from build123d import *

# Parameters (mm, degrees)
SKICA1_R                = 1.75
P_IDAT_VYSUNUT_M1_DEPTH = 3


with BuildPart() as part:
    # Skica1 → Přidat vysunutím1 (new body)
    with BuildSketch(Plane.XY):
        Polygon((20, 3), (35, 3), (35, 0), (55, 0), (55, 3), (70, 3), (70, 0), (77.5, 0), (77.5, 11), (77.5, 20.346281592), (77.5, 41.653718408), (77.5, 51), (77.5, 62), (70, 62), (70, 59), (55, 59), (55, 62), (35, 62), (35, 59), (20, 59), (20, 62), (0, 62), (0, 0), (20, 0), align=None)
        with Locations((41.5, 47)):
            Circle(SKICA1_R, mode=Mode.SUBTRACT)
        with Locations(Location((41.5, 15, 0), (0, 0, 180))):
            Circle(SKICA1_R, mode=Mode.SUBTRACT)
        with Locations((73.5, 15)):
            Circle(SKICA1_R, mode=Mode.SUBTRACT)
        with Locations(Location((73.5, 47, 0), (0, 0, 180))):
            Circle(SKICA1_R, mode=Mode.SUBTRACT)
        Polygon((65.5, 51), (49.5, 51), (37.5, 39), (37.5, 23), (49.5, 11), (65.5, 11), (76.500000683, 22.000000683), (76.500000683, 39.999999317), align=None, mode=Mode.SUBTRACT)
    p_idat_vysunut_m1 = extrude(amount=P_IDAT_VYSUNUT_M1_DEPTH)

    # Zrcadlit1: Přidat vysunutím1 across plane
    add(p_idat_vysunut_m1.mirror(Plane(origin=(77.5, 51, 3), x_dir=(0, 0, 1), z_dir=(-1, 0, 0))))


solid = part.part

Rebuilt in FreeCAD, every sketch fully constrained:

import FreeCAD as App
import Part
import Sketcher
from FreeCAD import Vector
Q = App.Units.Quantity


def add_polygon(sketch, points):
    """Adds a closed chain of lines whose ends are joined by coincident constraints."""
    first, n = sketch.GeometryCount, len(points)
    for a, b in zip(points, points[1:] + points[:1]):
        sketch.addGeometry(Part.LineSegment(App.Vector(*a, 0), App.Vector(*b, 0)), False)
    for i in range(n):
        sketch.addConstraint(Sketcher.Constraint("Coincident", first + i, 2, first + (i + 1) % n, 1))

doc = App.newDocument("Part")
body = doc.addObject("PartDesign::Body", "Body")

sketch1 = body.newObject("Sketcher::SketchObject", "Sketch")
sketch1.AttachmentSupport = (doc.getObject("XY_Plane"), [""])
sketch1.MapMode = "FlatFace"
add_polygon(sketch1, [(20, 3), (35, 3), (35, 0), (55, 0), (55, 3), (70, 3), (70, 0), (77.5, 0), (77.5, 62), (70, 62), (70, 59), (55, 59), (55, 62), (35, 62), (35, 59), (20, 59), (20, 62), (0, 62), (0, 0), (20, 0)])
sketch1.addGeometry(Part.Circle(Vector(41.5, 15, 0), Vector(0, 0, 1), 1.75), False)
sketch1.addGeometry(Part.Circle(Vector(73.5, 15, 0), Vector(0, 0, 1), 1.75), False)
sketch1.addGeometry(Part.Circle(Vector(41.5, 47, 0), Vector(0, 0, 1), 1.75), False)
add_polygon(sketch1, [(49.5, 51), (65.5, 51), (76.500001, 39.999999), (76.500001, 22.000001), (65.5, 11), (49.5, 11), (37.5, 23), (37.5, 39)])
sketch1.addGeometry(Part.Circle(Vector(73.5, 47, 0), Vector(0, 0, 1), 1.75), False)
sketch1.addConstraint([
    Sketcher.Constraint("Horizontal", 0),
    Sketcher.Constraint("Vertical", 1),
    Sketcher.Constraint("Horizontal", 2),
    Sketcher.Constraint("Vertical", 3),
    Sketcher.Constraint("Horizontal", 4),
    Sketcher.Constraint("Vertical", 5),
    Sketcher.Constraint("Horizontal", 6),
    Sketcher.Constraint("Vertical", 7),
    Sketcher.Constraint("Horizontal", 8),
    Sketcher.Constraint("Vertical", 9),
    Sketcher.Constraint("Horizontal", 10),
    Sketcher.Constraint("Vertical", 11),
    Sketcher.Constraint("Horizontal", 12),
    Sketcher.Constraint("Vertical", 13),
    Sketcher.Constraint("Horizontal", 14),
    Sketcher.Constraint("Vertical", 15),
    Sketcher.Constraint("Horizontal", 16),
    Sketcher.Constraint("Vertical", 17),
    Sketcher.Constraint("Horizontal", 18),
    Sketcher.Constraint("Vertical", 19),
    Sketcher.Constraint("Horizontal", 23),
    Sketcher.Constraint("Vertical", 25),
    Sketcher.Constraint("Horizontal", 27),
    Sketcher.Constraint("Vertical", 29),
    Sketcher.Constraint("Coincident", 17, 2, -1, 1),
    Sketcher.Constraint("Equal", 20, 21),
    Sketcher.Constraint("Equal", 21, 22),
    Sketcher.Constraint("Equal", 22, 31),
    Sketcher.Constraint("PointOnObject", 1, 2, -1),
    Sketcher.Constraint("PointOnObject", 5, 2, -1),
    Sketcher.Constraint("Perpendicular", 24, 26),
    Sketcher.Constraint("Perpendicular", 26, 28),
    Sketcher.Constraint("Perpendicular", 28, 30),
    Sketcher.Constraint("Horizontal", 20, 3, 21, 3),
    Sketcher.Constraint("Horizontal", 22, 3, 31, 3),
    Sketcher.Constraint("Horizontal", 0, 2, 3, 2),
    Sketcher.Constraint("Horizontal", 8, 2, 11, 2),
    Sketcher.Constraint("Horizontal", 10, 2, 13, 2),
    Sketcher.Constraint("Horizontal", 12, 2, 15, 2),
    Sketcher.Constraint("Vertical", 20, 3, 22, 3),
    Sketcher.Constraint("Vertical", 21, 3, 31, 3),
    Sketcher.Constraint("Vertical", 5, 2, 8, 2),
    Sketcher.Constraint("Vertical", 3, 2, 10, 2),
    Sketcher.Constraint("Vertical", 1, 2, 12, 2),
    Sketcher.Constraint("Vertical", 15, 2, 18, 2),
    Sketcher.Constraint("Vertical", 23, 2, 26, 2),
    Sketcher.Constraint("Vertical", 27, 2, 30, 2),
    Sketcher.Constraint("Equal", 0, 4),
    Sketcher.Constraint("Equal", 12, 16),
    Sketcher.Constraint("Equal", 5, 9),
    Sketcher.Constraint("Equal", 27, 29),
    Sketcher.Constraint("Equal", 24, 26),
    Sketcher.Constraint("Diameter", 20, Q("3.5 mm")),
    Sketcher.Constraint("DistanceX", 0, 1, 0, 2, Q("15 mm")),
    Sketcher.Constraint("DistanceX", 2, 1, 2, 2, Q("20 mm")),
    Sketcher.Constraint("DistanceX", 23, 1, 23, 2, Q("16 mm")),
    Sketcher.Constraint("DistanceY", 1, 2, 1, 1, Q("3 mm")),
    Sketcher.Constraint("DistanceY", 7, 1, 7, 2, Q("62 mm")),
    Sketcher.Constraint("DistanceY", 25, 2, 25, 1, Q("17.999999 mm")),
    Sketcher.Constraint("DistanceX", 6, 1, 6, 2, Q("7.5 mm")),
    Sketcher.Constraint("DistanceY", -1, 1, 20, 3, Q("15 mm")),
    Sketcher.Constraint("DistanceY", -1, 1, 22, 3, Q("47 mm")),
    Sketcher.Constraint("DistanceY", -1, 1, 23, 2, Q("51 mm")),
    Sketcher.Constraint("DistanceY", -1, 1, 24, 2, Q("39.999999 mm")),
    Sketcher.Constraint("DistanceX", 20, 3, 21, 3, Q("32 mm")),
    Sketcher.Constraint("DistanceX", 21, 3, 6, 2, Q("4 mm")),
    Sketcher.Constraint("DistanceX", 23, 2, 31, 3, Q("8 mm")),
])
pad1 = body.newObject("PartDesign::Pad", "Pad")
pad1.Profile = sketch1
pad1.Length = 3
doc.recompute()

datumplane = body.newObject("PartDesign::Plane", "DatumPlane")
datumplane.AttachmentSupport = (doc.getObject("YZ_Plane"), [""])
datumplane.MapMode = "FlatFace"
datumplane.AttachmentOffset = App.Placement(Vector(0, 0, 77.5), App.Rotation())
mirrored = body.newObject("PartDesign::Mirrored", "Mirrored")
mirrored.Originals = [pad1]
mirrored.MirrorPlane = (datumplane, [""])
body.Tip = mirrored

doc.recompute()
